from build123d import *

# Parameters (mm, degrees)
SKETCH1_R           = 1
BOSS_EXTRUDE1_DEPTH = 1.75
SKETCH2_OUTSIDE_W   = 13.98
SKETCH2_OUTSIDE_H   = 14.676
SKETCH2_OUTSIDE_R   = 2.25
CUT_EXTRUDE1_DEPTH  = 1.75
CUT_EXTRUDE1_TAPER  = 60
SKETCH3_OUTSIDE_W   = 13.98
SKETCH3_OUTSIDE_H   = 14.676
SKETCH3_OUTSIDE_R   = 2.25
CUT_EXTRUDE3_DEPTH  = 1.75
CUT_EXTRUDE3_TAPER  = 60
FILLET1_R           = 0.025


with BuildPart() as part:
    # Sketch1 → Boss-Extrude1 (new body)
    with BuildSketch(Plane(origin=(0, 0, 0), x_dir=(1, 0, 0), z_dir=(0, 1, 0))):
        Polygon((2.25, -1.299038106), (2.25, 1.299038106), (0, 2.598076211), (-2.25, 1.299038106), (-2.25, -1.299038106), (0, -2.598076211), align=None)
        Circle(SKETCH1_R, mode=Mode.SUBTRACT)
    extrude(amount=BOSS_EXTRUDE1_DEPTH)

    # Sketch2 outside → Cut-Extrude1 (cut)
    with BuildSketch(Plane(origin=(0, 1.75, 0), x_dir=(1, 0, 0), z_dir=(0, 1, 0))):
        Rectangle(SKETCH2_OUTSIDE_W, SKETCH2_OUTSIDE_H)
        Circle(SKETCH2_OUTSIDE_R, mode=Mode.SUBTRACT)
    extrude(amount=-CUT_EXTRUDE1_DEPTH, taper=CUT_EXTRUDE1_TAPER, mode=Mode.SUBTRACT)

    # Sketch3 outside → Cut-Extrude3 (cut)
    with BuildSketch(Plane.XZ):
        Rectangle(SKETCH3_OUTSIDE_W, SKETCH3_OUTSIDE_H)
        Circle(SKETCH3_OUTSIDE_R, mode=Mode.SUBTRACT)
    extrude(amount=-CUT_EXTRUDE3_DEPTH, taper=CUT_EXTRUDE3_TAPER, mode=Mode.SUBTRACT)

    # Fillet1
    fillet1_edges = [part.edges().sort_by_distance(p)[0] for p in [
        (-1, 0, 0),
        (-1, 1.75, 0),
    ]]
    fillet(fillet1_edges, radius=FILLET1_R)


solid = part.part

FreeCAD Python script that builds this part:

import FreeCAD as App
import Part
import Sketcher
from FreeCAD import Vector
Q = App.Units.Quantity


def edges_at(feature, points):
    """Names of the edges that pass closest to the given points."""
    edges = feature.Shape.Edges
    near = lambda p: min(range(len(edges)), key=lambda i: edges[i].distToShape(Part.Vertex(*p))[0])
    return sorted({f"Edge{near(p) + 1}" for p in points})


def add_polygon(sketch, points):
    """Adds a closed chain of lines whose ends are joined by coincident constraints."""
    first, n = sketch.GeometryCount, len(points)
    for a, b in zip(points, points[1:] + points[:1]):
        sketch.addGeometry(Part.LineSegment(App.Vector(*a, 0), App.Vector(*b, 0)), False)
    for i in range(n):
        sketch.addConstraint(Sketcher.Constraint("Coincident", first + i, 2, first + (i + 1) % n, 1))

doc = App.newDocument("Part")
params = doc.addObject("Spreadsheet::Sheet", "Params")
for row, (alias, value) in enumerate([
    ("sketch1_diameter", "2 mm"),
    ("pad1_length", "1.75 mm"),
    ("sketch2_diameter", "4.5 mm"),
    ("sketch2_width", "13.98 mm"),
    ("pocket1_length", "1.75 mm"),
    ("pocket1_taper", "60 deg"),
    ("sketch3_diameter", "4.5 mm"),
    ("sketch3_width", "13.98 mm"),
    ("pocket2_length", "1.75 mm"),
    ("pocket2_taper", "60 deg"),
    ("fillet_radius", "0.025 mm"),
], start=1):
    params.set(f"A{row}", alias)
    params.set(f"B{row}", "=" + value)
    params.setAlias(f"B{row}", alias)

body = doc.addObject("PartDesign::Body", "Body")

sketch1 = body.newObject("Sketcher::SketchObject", "Sketch")
sketch1.AttachmentSupport = (doc.getObject("XZ_Plane"), [""])
sketch1.MapMode = "FlatFace"
add_polygon(sketch1, [(2.2, 1.3), (2.2, -1.3), (0, -2.6), (-2.2, -1.3), (-2.2, 1.3), (0, 2.6)])
sketch1.addGeometry(Part.Circle(Vector(0, 0, 0), Vector(0, 0, 1), 1), False)
sketch1.addConstraint(Sketcher.Constraint("Vertical", 0))
sketch1.addConstraint(Sketcher.Constraint("Vertical", 3))
sketch1.addConstraint(Sketcher.Constraint("Coincident", 6, 3, -1, 1))
sketch1.addConstraint(Sketcher.Constraint("Symmetric", 0, 2, 3, 2, -1, 1))
sketch1.addConstraint(Sketcher.Constraint("Symmetric", 1, 2, 4, 2, -1, 1))
sketch1.addConstraint(Sketcher.Constraint("PointOnObject", 1, 2, -2))
sketch1.addConstraint(Sketcher.Constraint("Parallel", 2, 5))
sketch1.addConstraint(Sketcher.Constraint("Horizontal", 0, 2, 2, 2))
sketch1.addConstraint(Sketcher.Constraint("Diameter", 6, Q("2 mm")))
sketch1.addConstraint(Sketcher.Constraint("Angle", 1, Q("-150 deg")))
sketch1.addConstraint(Sketcher.Constraint("DistanceX", 2, 2, 0, 2, Q("4.5 mm")))
sketch1.addConstraint(Sketcher.Constraint("DistanceY", 0, 2, 0, 1, Q("2.598076 mm")))
sketch1.setExpression("Constraints[14]", "Params.sketch1_diameter")
pad1 = body.newObject("PartDesign::Pad", "Pad")
pad1.Profile = sketch1
pad1.setExpression("Length", "Params.pad1_length")
pad1.Reversed = True

sketch2 = body.newObject("Sketcher::SketchObject", "Sketch001")
sketch2.AttachmentSupport = (doc.getObject("XZ_Plane"), [""])
sketch2.MapMode = "FlatFace"
sketch2.AttachmentOffset = App.Placement(Vector(0, 0, -1.75), App.Rotation())
add_polygon(sketch2, [(-7, -7.3), (-7, 7.3), (7, 7.3), (7, -7.3)])
sketch2.addGeometry(Part.Circle(Vector(0, 0, 0), Vector(0, 0, 1), 2.2), False)
sketch2.addConstraint(Sketcher.Constraint("Vertical", 0))
sketch2.addConstraint(Sketcher.Constraint("Horizontal", 1))
sketch2.addConstraint(Sketcher.Constraint("Vertical", 2))
sketch2.addConstraint(Sketcher.Constraint("Horizontal", 3))
sketch2.addConstraint(Sketcher.Constraint("Coincident", 4, 3, -1, 1))
sketch2.addConstraint(Sketcher.Constraint("Symmetric", 0, 2, 2, 2, -1, 1))
sketch2.addConstraint(Sketcher.Constraint("Diameter", 4, Q("4.5 mm")))
sketch2.addConstraint(Sketcher.Constraint("DistanceX", 1, 1, 1, 2, Q("13.98 mm")))
sketch2.addConstraint(Sketcher.Constraint("DistanceY", 0, 1, 0, 2, Q("14.676 mm")))
sketch2.setExpression("Constraints[10]", "Params.sketch2_diameter")
sketch2.setExpression("Constraints[11]", "Params.sketch2_width")
pocket1 = body.newObject("PartDesign::Pocket", "Pocket")
pocket1.Profile = sketch2
pocket1.setExpression("Length", "Params.pocket1_length")
pocket1.Reversed = True
pocket1.setExpression("TaperAngle", "Params.pocket1_taper")

sketch3 = body.newObject("Sketcher::SketchObject", "Sketch002")
sketch3.AttachmentSupport = (doc.getObject("XZ_Plane"), [""])
sketch3.MapMode = "FlatFace"
add_polygon(sketch3, [(-7, 7.3), (-7, -7.3), (7, -7.3), (7, 7.3)])
sketch3.addGeometry(Part.Circle(Vector(0, 0, 0), Vector(0, 0, 1), 2.2), False)
sketch3.addConstraint(Sketcher.Constraint("Vertical", 0))
sketch3.addConstraint(Sketcher.Constraint("Horizontal", 1))
sketch3.addConstraint(Sketcher.Constraint("Vertical", 2))
sketch3.addConstraint(Sketcher.Constraint("Horizontal", 3))
sketch3.addConstraint(Sketcher.Constraint("Coincident", 4, 3, -1, 1))
sketch3.addConstraint(Sketcher.Constraint("Symmetric", 0, 2, 2, 2, -1, 1))
sketch3.addConstraint(Sketcher.Constraint("Diameter", 4, Q("4.5 mm")))
sketch3.addConstraint(Sketcher.Constraint("DistanceX", 1, 1, 1, 2, Q("13.98 mm")))
sketch3.addConstraint(Sketcher.Constraint("DistanceY", 0, 2, 0, 1, Q("14.676 mm")))
sketch3.setExpression("Constraints[10]", "Params.sketch3_diameter")
sketch3.setExpression("Constraints[11]", "Params.sketch3_width")
pocket2 = body.newObject("PartDesign::Pocket", "Pocket001")
pocket2.Profile = sketch3
pocket2.setExpression("Length", "Params.pocket2_length")
pocket2.setExpression("TaperAngle", "Params.pocket2_taper")
doc.recompute()

fillet = body.newObject("PartDesign::Fillet", "Fillet")
fillet.Base = (pocket2, edges_at(pocket2, [(-1, 0, 0), (-1, 1.75, 0)]))
fillet.setExpression("Radius", "Params.fillet_radius")

doc.recompute()
